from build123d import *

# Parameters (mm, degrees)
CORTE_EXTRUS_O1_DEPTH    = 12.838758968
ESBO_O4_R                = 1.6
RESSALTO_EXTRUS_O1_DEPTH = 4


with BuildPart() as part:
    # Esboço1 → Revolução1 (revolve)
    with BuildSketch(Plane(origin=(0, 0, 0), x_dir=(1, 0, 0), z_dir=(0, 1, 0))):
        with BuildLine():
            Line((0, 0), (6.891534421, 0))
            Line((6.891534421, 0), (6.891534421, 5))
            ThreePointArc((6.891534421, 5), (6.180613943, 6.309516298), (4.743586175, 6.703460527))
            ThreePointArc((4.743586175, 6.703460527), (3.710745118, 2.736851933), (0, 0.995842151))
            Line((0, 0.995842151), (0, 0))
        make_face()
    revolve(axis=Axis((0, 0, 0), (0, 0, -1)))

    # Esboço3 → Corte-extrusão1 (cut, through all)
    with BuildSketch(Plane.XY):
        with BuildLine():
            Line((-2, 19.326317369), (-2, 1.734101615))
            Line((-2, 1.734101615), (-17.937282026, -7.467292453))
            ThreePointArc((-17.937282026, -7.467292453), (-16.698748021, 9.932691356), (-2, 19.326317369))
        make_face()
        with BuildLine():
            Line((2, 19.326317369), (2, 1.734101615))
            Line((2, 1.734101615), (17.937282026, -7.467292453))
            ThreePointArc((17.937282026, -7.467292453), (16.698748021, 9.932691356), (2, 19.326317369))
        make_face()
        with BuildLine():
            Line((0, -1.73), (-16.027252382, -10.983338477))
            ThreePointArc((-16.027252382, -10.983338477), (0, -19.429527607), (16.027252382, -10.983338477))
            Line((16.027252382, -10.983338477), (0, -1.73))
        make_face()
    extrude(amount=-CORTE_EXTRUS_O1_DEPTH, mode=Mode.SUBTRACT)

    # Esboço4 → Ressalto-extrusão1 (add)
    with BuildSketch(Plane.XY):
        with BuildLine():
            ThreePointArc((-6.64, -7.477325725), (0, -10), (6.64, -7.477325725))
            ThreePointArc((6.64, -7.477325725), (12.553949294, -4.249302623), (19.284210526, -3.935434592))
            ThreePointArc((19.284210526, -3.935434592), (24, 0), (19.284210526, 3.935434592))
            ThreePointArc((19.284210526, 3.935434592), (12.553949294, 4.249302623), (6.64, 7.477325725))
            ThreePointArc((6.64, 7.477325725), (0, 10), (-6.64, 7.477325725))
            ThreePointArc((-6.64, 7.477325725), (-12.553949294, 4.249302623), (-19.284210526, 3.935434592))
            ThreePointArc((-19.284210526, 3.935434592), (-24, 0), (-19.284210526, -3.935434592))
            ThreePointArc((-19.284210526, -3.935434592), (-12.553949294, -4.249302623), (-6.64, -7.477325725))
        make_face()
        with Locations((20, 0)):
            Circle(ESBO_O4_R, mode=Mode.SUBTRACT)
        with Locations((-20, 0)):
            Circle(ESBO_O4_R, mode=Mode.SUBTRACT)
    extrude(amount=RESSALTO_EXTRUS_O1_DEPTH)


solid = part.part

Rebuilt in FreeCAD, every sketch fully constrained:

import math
import FreeCAD as App
import Part
import Sketcher
Q = App.Units.Quantity

doc = App.newDocument("Part")
body = doc.addObject("PartDesign::Body", "Body")

sketch1 = body.newObject("Sketcher::SketchObject", "Sketch")
sketch1.AttachmentSupport = (doc.getObject("XZ_Plane"), [""])
sketch1.MapMode = "FlatFace"
sketch1.addGeometry(Part.LineSegment(App.Vector(0, 0, 0), App.Vector(6.891534, 0, 0)), False)
sketch1.addGeometry(Part.LineSegment(App.Vector(6.891534, 0, 0), App.Vector(6.891534, -5, 0)), False)
sketch1.addGeometry(Part.ArcOfCircle(Part.Circle(App.Vector(5, -4.820842, 0), App.Vector(0, 0, 1), 1.9), math.radians(-97.755997), math.radians(-5.410664)), False)
sketch1.addGeometry(Part.ArcOfCircle(Part.Circle(App.Vector(0, -5.820842, 0), App.Vector(0, 0, 1), 4.825), math.radians(-10.540243), math.radians(90)), False)
sketch1.addGeometry(Part.LineSegment(App.Vector(0, -0.995842, 0), App.Vector(0, 0, 0)), False)
sketch1.addConstraint(Sketcher.Constraint("Coincident", 0, 2, 1, 1))
sketch1.addConstraint(Sketcher.Constraint("Coincident", 1, 2, 2, 2))
sketch1.addConstraint(Sketcher.Constraint("Coincident", 2, 1, 3, 1))
sketch1.addConstraint(Sketcher.Constraint("Coincident", 3, 2, 4, 1))
sketch1.addConstraint(Sketcher.Constraint("Coincident", 4, 2, 0, 1))
sketch1.addConstraint(Sketcher.Constraint("Horizontal", 0))
sketch1.addConstraint(Sketcher.Constraint("Vertical", 1))
sketch1.addConstraint(Sketcher.Constraint("Vertical", 4))
sketch1.addConstraint(Sketcher.Constraint("Coincident", 4, 2, -1, 1))
sketch1.addConstraint(Sketcher.Constraint("PointOnObject", 3, 3, -2))
sketch1.addConstraint(Sketcher.Constraint("Radius", 2, Q("1.9 mm")))
sketch1.addConstraint(Sketcher.Constraint("DistanceY", 1, 2, 1, 1, Q("5 mm")))
sketch1.addConstraint(Sketcher.Constraint("DistanceX", -1, 1, 2, 3, Q("5 mm")))
sketch1.addConstraint(Sketcher.Constraint("Radius", 3, Q("4.825 mm")))
sketch1.addConstraint(Sketcher.Constraint("DistanceY", 3, 3, 2, 3, Q("1 mm")))
sketch1.addConstraint(Sketcher.Constraint("DistanceX", 0, 1, 0, 2, Q("6.891534 mm")))
revolution = body.newObject("PartDesign::Revolution", "Revolution")
revolution.Profile = sketch1
revolution.ReferenceAxis = (sketch1, ["V_Axis"])
revolution.Angle = 360

sketch2 = body.newObject("Sketcher::SketchObject", "Sketch001")
sketch2.AttachmentSupport = (doc.getObject("XY_Plane"), [""])
sketch2.MapMode = "FlatFace"
sketch2.addGeometry(Part.LineSegment(App.Vector(-2, 1.734102, 0), App.Vector(-2, 19.326317, 0)), False)
sketch2.addGeometry(Part.ArcOfCircle(Part.Circle(App.Vector(0, 0, 0), App.Vector(0, 0, 1), 19.429528), math.radians(95.90827), math.radians(202.601967)), False)
sketch2.addGeometry(Part.LineSegment(App.Vector(-17.937282, -7.467292, 0), App.Vector(-2, 1.734102, 0)), False)
sketch2.addGeometry(Part.LineSegment(App.Vector(2, 19.326317, 0), App.Vector(2, 1.734102, 0)), False)
sketch2.addGeometry(Part.LineSegment(App.Vector(2, 1.734102, 0), App.Vector(17.937282, -7.467292, 0)), False)
sketch2.addGeometry(Part.ArcOfCircle(Part.Circle(App.Vector(0, 0, 0), App.Vector(0, 0, 1), 19.429528), math.radians(-22.601967), math.radians(84.09173)), False)
sketch2.addGeometry(Part.LineSegment(App.Vector(0, -1.73, 0), App.Vector(-16.027252, -10.983338, 0)), False)
sketch2.addGeometry(Part.ArcOfCircle(Part.Circle(App.Vector(0, 0, 0), App.Vector(0, 0, 1), 19.429528), math.radians(-145.577494), math.radians(-34.422506)), False)
sketch2.addGeometry(Part.LineSegment(App.Vector(16.027252, -10.983338, 0), App.Vector(0, -1.73, 0)), False)
sketch2.addConstraint(Sketcher.Constraint("Coincident", 0, 2, 1, 1))
sketch2.addConstraint(Sketcher.Constraint("Coincident", 1, 2, 2, 1))
sketch2.addConstraint(Sketcher.Constraint("Coincident", 2, 2, 0, 1))
sketch2.addConstraint(Sketcher.Constraint("Coincident", 3, 2, 4, 1))
sketch2.addConstraint(Sketcher.Constraint("Coincident", 4, 2, 5, 1))
sketch2.addConstraint(Sketcher.Constraint("Coincident", 5, 2, 3, 1))
sketch2.addConstraint(Sketcher.Constraint("Coincident", 6, 2, 7, 1))
sketch2.addConstraint(Sketcher.Constraint("Coincident", 7, 2, 8, 1))
sketch2.addConstraint(Sketcher.Constraint("Coincident", 8, 2, 6, 1))
sketch2.addConstraint(Sketcher.Constraint("Vertical", 0))
sketch2.addConstraint(Sketcher.Constraint("Vertical", 3))
sketch2.addConstraint(Sketcher.Constraint("Coincident", 1, 3, -1, 1))
sketch2.addConstraint(Sketcher.Constraint("Coincident", 5, 3, -1, 1))
sketch2.addConstraint(Sketcher.Constraint("Coincident", 7, 3, -1, 1))
sketch2.addConstraint(Sketcher.Constraint("Equal", 1, 5))
sketch2.addConstraint(Sketcher.Constraint("Equal", 5, 7))
sketch2.addConstraint(Sketcher.Constraint("Symmetric", 2, 2, 3, 2, -2))
sketch2.addConstraint(Sketcher.Constraint("PointOnObject", 8, 2, -2))
sketch2.addConstraint(Sketcher.Constraint("Parallel", 2, 6))
sketch2.addConstraint(Sketcher.Constraint("Parallel", 4, 8))
sketch2.addConstraint(Sketcher.Constraint("Horizontal", 1, 2, 4, 2))
sketch2.addConstraint(Sketcher.Constraint("Angle", 2, Q("30 deg")))
sketch2.addConstraint(Sketcher.Constraint("DistanceX", 0, 2, -1, 1, Q("2 mm")))
sketch2.addConstraint(Sketcher.Constraint("DistanceY", 8, 2, -1, 1, Q("1.73 mm")))
sketch2.addConstraint(Sketcher.Constraint("Radius", 1, Q("19.429528 mm")))
sketch2.addConstraint(Sketcher.Constraint("DistanceY", -1, 1, 2, 2, Q("1.734102 mm")))
pocket1 = body.newObject("PartDesign::Pocket", "Pocket")
pocket1.Profile = sketch2
pocket1.Type = "ThroughAll"

sketch3 = body.newObject("Sketcher::SketchObject", "Sketch002")
sketch3.AttachmentSupport = (doc.getObject("XY_Plane"), [""])
sketch3.MapMode = "FlatFace"
sketch3.addGeometry(Part.ArcOfCircle(Part.Circle(App.Vector(0, 0, 0), App.Vector(0, 0, 1), 10), math.radians(-131.605654), math.radians(-48.394346)), False)
sketch3.addGeometry(Part.ArcOfCircle(Part.Circle(App.Vector(16.6, -18.693314, 0), App.Vector(0, 0, 1), 15), math.radians(79.691547), math.radians(131.605654)), False)
sketch3.addGeometry(Part.ArcOfCircle(Part.Circle(App.Vector(20, 0, 0), App.Vector(0, 0, 1), 4), math.radians(-100.308453), math.radians(100.308453)), False)
sketch3.addGeometry(Part.ArcOfCircle(Part.Circle(App.Vector(16.6, 18.693314, 0), App.Vector(0, 0, 1), 15), math.radians(-131.605654), math.radians(-79.691547)), False)
sketch3.addGeometry(Part.ArcOfCircle(Part.Circle(App.Vector(0, 0, 0), App.Vector(0, 0, 1), 10), math.radians(48.394346), math.radians(131.605654)), False)
sketch3.addGeometry(Part.ArcOfCircle(Part.Circle(App.Vector(-16.6, 18.693314, 0), App.Vector(0, 0, 1), 15), math.radians(-100.308453), math.radians(-48.394346)), False)
sketch3.addGeometry(Part.ArcOfCircle(Part.Circle(App.Vector(-20, 0, 0), App.Vector(0, 0, 1), 4), math.radians(79.691547), math.radians(280.308453)), False)
sketch3.addGeometry(Part.ArcOfCircle(Part.Circle(App.Vector(-16.6, -18.693314, 0), App.Vector(0, 0, 1), 15), math.radians(48.394346), math.radians(100.308453)), False)
sketch3.addGeometry(Part.Circle(App.Vector(-20, 0, 0), App.Vector(0, 0, 1), 1.6), False)
sketch3.addGeometry(Part.Circle(App.Vector(20, 0, 0), App.Vector(0, 0, 1), 1.6), False)
sketch3.addConstraint(Sketcher.Constraint("Tangent", 0, 2, 1, 2))
sketch3.addConstraint(Sketcher.Constraint("Tangent", 1, 1, 2, 1))
sketch3.addConstraint(Sketcher.Constraint("Tangent", 2, 2, 3, 2))
sketch3.addConstraint(Sketcher.Constraint("Tangent", 3, 1, 4, 1))
sketch3.addConstraint(Sketcher.Constraint("Tangent", 4, 2, 5, 2))
sketch3.addConstraint(Sketcher.Constraint("Tangent", 5, 1, 6, 1))
sketch3.addConstraint(Sketcher.Constraint("Tangent", 6, 2, 7, 2))
sketch3.addConstraint(Sketcher.Constraint("Tangent", 7, 1, 0, 1))
sketch3.addConstraint(Sketcher.Constraint("Coincident", 0, 3, -1, 1))
sketch3.addConstraint(Sketcher.Constraint("Coincident", 4, 3, -1, 1))
sketch3.addConstraint(Sketcher.Constraint("Coincident", 8, 3, 6, 3))
sketch3.addConstraint(Sketcher.Constraint("Coincident", 9, 3, 2, 3))
sketch3.addConstraint(Sketcher.Constraint("Equal", 1, 3))
sketch3.addConstraint(Sketcher.Constraint("Equal", 0, 4))
sketch3.addConstraint(Sketcher.Constraint("Equal", 3, 5))
sketch3.addConstraint(Sketcher.Constraint("Equal", 2, 6))
sketch3.addConstraint(Sketcher.Constraint("Equal", 5, 7))
sketch3.addConstraint(Sketcher.Constraint("Equal", 8, 9))
sketch3.addConstraint(Sketcher.Constraint("Symmetric", 2, 3, 6, 3, -1, 1))
sketch3.addConstraint(Sketcher.Constraint("PointOnObject", 2, 3, -1))
sketch3.addConstraint(Sketcher.Constraint("Radius", 0, Q("10 mm")))
sketch3.addConstraint(Sketcher.Constraint("Radius", 1, Q("15 mm")))
sketch3.addConstraint(Sketcher.Constraint("Radius", 2, Q("4 mm")))
sketch3.addConstraint(Sketcher.Constraint("Diameter", 8, Q("3.2 mm")))
sketch3.addConstraint(Sketcher.Constraint("DistanceX", -1, 1, 2, 3, Q("20 mm")))
pad1 = body.newObject("PartDesign::Pad", "Pad")
pad1.Profile = sketch3
pad1.Length = 4

doc.recompute()
